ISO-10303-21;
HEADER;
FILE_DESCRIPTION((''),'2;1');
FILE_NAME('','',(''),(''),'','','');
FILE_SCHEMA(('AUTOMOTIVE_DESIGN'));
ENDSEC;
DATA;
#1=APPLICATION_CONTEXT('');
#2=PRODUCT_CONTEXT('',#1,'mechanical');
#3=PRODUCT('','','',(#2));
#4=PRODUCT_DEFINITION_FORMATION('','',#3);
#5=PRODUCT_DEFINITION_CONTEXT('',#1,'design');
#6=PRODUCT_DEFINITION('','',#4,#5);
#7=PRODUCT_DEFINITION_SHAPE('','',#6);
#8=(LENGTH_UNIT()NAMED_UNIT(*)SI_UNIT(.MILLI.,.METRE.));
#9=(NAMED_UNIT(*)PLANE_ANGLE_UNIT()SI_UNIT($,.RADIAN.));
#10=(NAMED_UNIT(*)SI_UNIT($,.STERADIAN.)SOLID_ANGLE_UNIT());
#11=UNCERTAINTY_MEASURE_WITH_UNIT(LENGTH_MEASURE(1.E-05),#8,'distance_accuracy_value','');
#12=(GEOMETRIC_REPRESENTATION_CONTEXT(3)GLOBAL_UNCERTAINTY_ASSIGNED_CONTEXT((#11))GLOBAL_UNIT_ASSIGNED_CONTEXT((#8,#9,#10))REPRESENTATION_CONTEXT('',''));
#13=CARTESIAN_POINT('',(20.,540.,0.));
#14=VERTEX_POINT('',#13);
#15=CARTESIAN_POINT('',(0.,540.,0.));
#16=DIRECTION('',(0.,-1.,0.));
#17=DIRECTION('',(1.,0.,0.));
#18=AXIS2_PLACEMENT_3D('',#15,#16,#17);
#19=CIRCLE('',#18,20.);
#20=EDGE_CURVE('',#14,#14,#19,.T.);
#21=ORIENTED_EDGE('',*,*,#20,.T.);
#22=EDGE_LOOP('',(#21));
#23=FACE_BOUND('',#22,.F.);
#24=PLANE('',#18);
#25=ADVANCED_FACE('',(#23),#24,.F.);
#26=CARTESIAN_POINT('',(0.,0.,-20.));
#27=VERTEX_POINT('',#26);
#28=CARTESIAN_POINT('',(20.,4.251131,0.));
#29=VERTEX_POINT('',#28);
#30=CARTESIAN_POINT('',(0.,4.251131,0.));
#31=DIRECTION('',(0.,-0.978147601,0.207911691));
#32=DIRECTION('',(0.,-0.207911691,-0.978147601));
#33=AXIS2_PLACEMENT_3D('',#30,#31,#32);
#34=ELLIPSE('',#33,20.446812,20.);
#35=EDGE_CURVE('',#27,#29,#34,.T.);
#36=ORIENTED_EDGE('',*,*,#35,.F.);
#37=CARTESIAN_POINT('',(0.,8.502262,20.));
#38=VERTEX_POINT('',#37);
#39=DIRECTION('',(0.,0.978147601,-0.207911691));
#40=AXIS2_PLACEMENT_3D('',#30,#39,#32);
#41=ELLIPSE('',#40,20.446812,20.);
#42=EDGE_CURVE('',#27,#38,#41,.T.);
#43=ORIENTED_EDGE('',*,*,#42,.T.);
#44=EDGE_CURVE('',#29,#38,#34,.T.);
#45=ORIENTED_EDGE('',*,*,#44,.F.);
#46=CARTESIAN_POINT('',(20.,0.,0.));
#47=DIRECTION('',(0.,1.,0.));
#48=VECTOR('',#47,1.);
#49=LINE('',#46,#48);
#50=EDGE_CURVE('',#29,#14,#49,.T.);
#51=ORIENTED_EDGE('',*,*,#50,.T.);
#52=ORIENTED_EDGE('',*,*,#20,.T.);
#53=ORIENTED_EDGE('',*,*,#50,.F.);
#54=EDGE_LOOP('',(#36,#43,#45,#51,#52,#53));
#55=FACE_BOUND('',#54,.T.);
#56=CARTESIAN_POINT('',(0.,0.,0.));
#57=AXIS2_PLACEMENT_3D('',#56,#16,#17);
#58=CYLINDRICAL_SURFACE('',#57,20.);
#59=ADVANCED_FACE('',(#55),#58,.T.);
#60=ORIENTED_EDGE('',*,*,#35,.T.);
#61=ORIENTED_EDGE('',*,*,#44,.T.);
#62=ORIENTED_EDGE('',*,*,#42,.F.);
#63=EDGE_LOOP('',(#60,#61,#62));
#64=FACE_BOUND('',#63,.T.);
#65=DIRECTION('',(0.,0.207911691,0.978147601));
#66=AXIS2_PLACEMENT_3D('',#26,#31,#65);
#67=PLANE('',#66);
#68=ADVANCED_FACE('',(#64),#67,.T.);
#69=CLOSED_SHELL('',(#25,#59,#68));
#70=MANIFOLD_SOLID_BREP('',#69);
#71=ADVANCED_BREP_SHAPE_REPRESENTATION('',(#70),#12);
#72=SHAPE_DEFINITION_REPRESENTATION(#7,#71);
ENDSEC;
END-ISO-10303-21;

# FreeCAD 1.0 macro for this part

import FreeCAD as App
import Part
import Sketcher
Q = App.Units.Quantity


def add_polygon(sketch, points):
    """Adds a closed chain of lines whose ends are joined by coincident constraints."""
    first, n = sketch.GeometryCount, len(points)
    for a, b in zip(points, points[1:] + points[:1]):
        sketch.addGeometry(Part.LineSegment(App.Vector(*a, 0), App.Vector(*b, 0)), False)
    for i in range(n):
        sketch.addConstraint(Sketcher.Constraint("Coincident", first + i, 2, first + (i + 1) % n, 1))

doc = App.newDocument("Part")
body = doc.addObject("PartDesign::Body", "Body")

# Sketch on XZ plane
sketch1 = body.newObject("Sketcher::SketchObject", "Sketch")
sketch1.AttachmentSupport = (doc.getObject("XZ_Plane"), [""])
sketch1.MapMode = "FlatFace"
sketch1.addGeometry(Part.Circle(App.Vector(0, 0, 0), App.Vector(0, 0, 1), 20), False)
sketch1.addConstraint([
    Sketcher.Constraint("Coincident", 0, 3, -1, 1),
    Sketcher.Constraint("Diameter", 0, 40.0),
])
pad1 = body.newObject("PartDesign::Pad", "Pad")
pad1.Profile = sketch1
pad1.Length = 540
pad1.Reversed = True

# Sketch on YZ plane
sketch2 = body.newObject("Sketcher::SketchObject", "Sketch001")
sketch2.AttachmentSupport = (doc.getObject("YZ_Plane"), [""])
sketch2.MapMode = "FlatFace"
add_polygon(sketch2, [(0, 20), (0, -20), (9, 20)])  # lines 0-2
sketch2.addConstraint([
    Sketcher.Constraint("Vertical", 0),
    Sketcher.Constraint("Horizontal", 2),
    Sketcher.Constraint("Symmetric", 0, 2, 2, 2, -1, 1),
    Sketcher.Constraint("DistanceY", 0, 2, 0, 1, 40.0),
    Sketcher.Constraint("Angle", 1, Q("78 deg")),
])
pocket1 = body.newObject("PartDesign::Pocket", "Pocket")
pocket1.Profile = sketch2
pocket1.Type = "ThroughAll"
pocket1.Midplane = True

doc.recompute()
